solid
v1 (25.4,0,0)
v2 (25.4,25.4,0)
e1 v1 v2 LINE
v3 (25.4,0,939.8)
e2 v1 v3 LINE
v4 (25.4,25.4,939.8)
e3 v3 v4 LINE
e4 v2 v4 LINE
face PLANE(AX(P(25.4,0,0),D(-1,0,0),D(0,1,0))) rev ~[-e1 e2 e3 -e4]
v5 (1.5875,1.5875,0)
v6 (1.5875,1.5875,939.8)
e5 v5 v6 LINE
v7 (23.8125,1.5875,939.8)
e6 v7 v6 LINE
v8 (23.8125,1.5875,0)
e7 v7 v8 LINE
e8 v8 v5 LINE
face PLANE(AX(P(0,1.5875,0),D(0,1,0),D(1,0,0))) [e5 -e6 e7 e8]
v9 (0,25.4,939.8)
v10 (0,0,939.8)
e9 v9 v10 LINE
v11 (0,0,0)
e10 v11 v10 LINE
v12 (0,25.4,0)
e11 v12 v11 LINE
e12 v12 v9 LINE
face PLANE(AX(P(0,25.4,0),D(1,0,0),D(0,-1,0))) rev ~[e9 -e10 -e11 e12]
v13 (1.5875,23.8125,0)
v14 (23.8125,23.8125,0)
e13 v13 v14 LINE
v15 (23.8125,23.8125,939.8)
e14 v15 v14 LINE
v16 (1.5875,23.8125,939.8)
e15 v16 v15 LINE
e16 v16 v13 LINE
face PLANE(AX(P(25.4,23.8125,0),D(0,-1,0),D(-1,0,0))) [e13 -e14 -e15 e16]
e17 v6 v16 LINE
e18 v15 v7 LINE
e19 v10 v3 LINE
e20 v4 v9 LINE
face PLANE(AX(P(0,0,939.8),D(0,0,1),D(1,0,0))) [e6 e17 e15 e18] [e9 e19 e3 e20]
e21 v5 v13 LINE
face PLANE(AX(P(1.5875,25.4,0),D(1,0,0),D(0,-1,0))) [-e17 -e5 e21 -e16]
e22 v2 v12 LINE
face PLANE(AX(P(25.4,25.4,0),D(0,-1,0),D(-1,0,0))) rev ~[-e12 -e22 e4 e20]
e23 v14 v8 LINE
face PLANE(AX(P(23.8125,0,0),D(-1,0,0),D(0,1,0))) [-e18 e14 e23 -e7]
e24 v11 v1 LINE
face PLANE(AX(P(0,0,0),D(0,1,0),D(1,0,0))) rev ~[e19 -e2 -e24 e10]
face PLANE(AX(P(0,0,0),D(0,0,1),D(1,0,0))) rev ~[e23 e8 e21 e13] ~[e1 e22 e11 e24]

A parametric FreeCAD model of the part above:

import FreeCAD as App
import Part
import Sketcher
Q = App.Units.Quantity


def faces_at(feature, points):
    """Names of the faces that lie closest to the given points."""
    faces = feature.Shape.Faces
    near = lambda p: min(range(len(faces)), key=lambda i: faces[i].distToShape(Part.Vertex(*p))[0])
    return sorted({f"Face{near(p) + 1}" for p in points})

doc = App.newDocument("Part")
body = doc.addObject("PartDesign::Body", "Body")

sketch1 = doc.addObject("Sketcher::SketchObject", "Sketch")
body.addObject(sketch1)
sketch1.AttachmentSupport = (doc.XY_Plane, [""])
sketch1.MapMode = "FlatFace"
sketch1.addGeometry(Part.LineSegment(App.Vector(0, 25.4, 0), App.Vector(0, 0, 0)), False)
sketch1.addGeometry(Part.LineSegment(App.Vector(0, 0, 0), App.Vector(25.4, 0, 0)), False)
sketch1.addGeometry(Part.LineSegment(App.Vector(25.4, 0, 0), App.Vector(25.4, 25.4, 0)), False)
sketch1.addGeometry(Part.LineSegment(App.Vector(25.4, 25.4, 0), App.Vector(0, 25.4, 0)), False)
sketch1.addConstraint(Sketcher.Constraint("Coincident", 0, 2, 1, 1))
sketch1.addConstraint(Sketcher.Constraint("Coincident", 1, 2, 2, 1))
sketch1.addConstraint(Sketcher.Constraint("Coincident", 2, 2, 3, 1))
sketch1.addConstraint(Sketcher.Constraint("Coincident", 3, 2, 0, 1))
sketch1.addConstraint(Sketcher.Constraint("Vertical", 0))
sketch1.addConstraint(Sketcher.Constraint("Horizontal", 1))
sketch1.addConstraint(Sketcher.Constraint("Vertical", 2))
sketch1.addConstraint(Sketcher.Constraint("Horizontal", 3))
sketch1.addConstraint(Sketcher.Constraint("Coincident", 0, 2, -1, 1))
sketch1.addConstraint(Sketcher.Constraint("Equal", 3, 0))
sketch1.addConstraint(Sketcher.Constraint("DistanceX", 1, 1, 1, 2, Q("1 in")))
pad1 = doc.addObject("PartDesign::Pad", "Pad")
body.addObject(pad1)
pad1.Profile = sketch1
pad1.Length = Q("37 in")
doc.recompute()

thickness = doc.addObject("PartDesign::Thickness", "Thickness")
body.addObject(thickness)
thickness.Base = (pad1, faces_at(pad1, [(8.467, 16.933, 0), (8.467, 16.933, 939.8)]))
thickness.Value = Q("0.0625 in")
thickness.Reversed = True
thickness.Join = "Intersection"

doc.recompute()
